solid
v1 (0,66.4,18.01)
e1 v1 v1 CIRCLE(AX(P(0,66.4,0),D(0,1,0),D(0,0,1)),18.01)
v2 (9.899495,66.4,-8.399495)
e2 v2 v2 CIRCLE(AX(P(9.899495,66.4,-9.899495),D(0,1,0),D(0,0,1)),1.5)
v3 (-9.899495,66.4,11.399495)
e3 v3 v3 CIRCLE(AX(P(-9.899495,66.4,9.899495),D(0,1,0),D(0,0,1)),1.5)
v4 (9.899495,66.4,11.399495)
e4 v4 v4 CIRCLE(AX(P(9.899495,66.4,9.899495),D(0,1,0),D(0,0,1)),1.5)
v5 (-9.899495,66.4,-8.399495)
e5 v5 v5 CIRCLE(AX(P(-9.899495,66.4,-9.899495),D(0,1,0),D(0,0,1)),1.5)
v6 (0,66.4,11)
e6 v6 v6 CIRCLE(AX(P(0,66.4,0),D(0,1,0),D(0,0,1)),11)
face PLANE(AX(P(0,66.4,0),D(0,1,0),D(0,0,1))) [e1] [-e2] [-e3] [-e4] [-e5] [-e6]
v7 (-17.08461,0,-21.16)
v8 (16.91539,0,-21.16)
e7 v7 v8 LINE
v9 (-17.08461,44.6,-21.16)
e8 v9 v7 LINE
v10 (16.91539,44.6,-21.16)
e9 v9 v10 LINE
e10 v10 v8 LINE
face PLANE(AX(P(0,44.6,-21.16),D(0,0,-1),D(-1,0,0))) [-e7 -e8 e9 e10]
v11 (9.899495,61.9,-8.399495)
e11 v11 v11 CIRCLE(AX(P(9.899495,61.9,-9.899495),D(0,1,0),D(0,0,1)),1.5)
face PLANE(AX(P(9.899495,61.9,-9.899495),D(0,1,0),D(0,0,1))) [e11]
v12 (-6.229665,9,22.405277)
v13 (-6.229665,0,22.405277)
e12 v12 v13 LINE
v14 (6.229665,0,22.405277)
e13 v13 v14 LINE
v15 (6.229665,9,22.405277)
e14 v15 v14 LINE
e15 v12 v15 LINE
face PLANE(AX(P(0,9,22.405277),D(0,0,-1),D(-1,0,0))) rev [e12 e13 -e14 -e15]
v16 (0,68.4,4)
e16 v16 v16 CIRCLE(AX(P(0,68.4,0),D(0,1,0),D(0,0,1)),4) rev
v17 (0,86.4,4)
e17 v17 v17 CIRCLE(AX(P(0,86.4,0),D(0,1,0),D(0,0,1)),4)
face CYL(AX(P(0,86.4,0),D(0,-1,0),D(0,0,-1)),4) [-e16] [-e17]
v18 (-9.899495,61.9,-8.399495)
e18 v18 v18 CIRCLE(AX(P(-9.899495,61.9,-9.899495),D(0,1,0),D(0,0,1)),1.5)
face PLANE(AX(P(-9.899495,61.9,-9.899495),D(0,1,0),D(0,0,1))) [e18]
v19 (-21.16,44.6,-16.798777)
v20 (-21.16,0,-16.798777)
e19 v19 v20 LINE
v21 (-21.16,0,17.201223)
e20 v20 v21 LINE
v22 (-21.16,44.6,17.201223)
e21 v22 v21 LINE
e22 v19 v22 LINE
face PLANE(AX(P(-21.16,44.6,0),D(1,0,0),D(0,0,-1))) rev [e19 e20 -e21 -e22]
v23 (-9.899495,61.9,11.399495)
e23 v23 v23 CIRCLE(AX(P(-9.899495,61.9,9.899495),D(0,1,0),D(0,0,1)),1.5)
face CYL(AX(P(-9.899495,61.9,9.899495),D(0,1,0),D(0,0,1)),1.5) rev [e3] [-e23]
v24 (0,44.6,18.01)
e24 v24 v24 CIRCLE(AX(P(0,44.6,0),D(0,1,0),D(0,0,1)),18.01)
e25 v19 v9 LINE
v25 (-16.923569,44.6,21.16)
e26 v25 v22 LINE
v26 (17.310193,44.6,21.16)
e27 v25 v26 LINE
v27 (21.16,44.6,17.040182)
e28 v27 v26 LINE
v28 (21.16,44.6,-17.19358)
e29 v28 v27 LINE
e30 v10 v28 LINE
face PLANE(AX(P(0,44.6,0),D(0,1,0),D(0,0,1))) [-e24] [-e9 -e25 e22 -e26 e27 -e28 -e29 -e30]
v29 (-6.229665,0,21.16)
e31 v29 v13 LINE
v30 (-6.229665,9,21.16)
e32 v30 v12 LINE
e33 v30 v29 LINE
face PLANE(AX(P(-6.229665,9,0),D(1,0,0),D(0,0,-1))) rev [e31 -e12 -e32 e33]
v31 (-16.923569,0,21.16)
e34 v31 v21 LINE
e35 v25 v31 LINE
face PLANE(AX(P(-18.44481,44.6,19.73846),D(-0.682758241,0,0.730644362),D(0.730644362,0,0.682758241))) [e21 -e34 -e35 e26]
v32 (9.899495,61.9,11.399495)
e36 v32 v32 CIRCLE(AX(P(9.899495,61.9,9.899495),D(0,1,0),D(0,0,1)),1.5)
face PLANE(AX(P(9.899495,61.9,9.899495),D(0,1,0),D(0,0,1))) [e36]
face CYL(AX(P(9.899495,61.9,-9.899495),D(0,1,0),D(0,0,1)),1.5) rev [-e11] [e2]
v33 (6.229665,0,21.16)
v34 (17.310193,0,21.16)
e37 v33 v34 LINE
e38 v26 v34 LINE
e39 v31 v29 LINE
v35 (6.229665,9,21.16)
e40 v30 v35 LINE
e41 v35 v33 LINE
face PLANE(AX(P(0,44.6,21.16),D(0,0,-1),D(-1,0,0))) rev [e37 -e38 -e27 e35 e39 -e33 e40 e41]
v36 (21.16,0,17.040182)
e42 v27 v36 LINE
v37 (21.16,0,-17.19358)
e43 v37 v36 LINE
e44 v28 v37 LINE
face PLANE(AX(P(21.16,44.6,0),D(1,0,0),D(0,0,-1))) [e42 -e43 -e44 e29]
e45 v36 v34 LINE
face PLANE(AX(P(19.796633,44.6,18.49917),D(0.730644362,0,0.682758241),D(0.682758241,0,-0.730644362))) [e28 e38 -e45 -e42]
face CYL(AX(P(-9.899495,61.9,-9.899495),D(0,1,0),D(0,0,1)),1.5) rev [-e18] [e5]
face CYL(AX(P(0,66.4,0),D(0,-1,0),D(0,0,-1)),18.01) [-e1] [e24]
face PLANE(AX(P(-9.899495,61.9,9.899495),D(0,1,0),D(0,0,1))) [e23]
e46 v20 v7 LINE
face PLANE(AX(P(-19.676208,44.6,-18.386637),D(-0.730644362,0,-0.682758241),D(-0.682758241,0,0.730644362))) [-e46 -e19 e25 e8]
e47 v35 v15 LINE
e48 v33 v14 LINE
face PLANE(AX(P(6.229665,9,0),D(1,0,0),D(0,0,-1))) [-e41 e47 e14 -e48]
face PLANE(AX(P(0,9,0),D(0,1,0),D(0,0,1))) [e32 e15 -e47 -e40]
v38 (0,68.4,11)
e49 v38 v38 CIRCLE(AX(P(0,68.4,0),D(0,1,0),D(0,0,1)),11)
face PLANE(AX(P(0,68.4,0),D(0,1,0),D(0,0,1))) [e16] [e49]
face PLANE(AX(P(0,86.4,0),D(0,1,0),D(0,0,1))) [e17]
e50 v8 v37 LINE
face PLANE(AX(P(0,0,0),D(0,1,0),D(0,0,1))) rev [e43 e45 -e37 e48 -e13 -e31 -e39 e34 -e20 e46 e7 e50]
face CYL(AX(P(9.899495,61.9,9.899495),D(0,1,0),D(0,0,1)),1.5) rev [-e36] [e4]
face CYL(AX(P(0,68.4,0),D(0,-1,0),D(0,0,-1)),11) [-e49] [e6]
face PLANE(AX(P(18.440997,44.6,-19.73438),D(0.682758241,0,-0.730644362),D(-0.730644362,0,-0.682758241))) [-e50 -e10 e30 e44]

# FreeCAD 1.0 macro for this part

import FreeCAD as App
import Part
import Sketcher

doc = App.newDocument("Part")
body = doc.addObject("PartDesign::Body", "Body")

# Sketch on XZ plane
sketch1 = doc.addObject("Sketcher::SketchObject", "Sketch")
body.addObject(sketch1)
sketch1.AttachmentSupport = (doc.XZ_Plane, [""])
sketch1.MapMode = "FlatFace"
sketch1.addGeometry(Part.LineSegment(App.Vector(-17.08461, -21.16, 0), App.Vector(-21.16, -16.798777, 0)), False)
sketch1.addGeometry(Part.LineSegment(App.Vector(-21.16, -16.798777, 0), App.Vector(-21.16, 17.201223, 0)), False)
sketch1.addGeometry(Part.LineSegment(App.Vector(-21.16, 17.201223, 0), App.Vector(-16.923569, 21.16, 0)), False)
sketch1.addGeometry(Part.LineSegment(App.Vector(-16.923569, 21.16, 0), App.Vector(17.310193, 21.16, 0)), False)
sketch1.addGeometry(Part.LineSegment(App.Vector(17.310193, 21.16, 0), App.Vector(21.16, 17.040182, 0)), False)
sketch1.addGeometry(Part.LineSegment(App.Vector(21.16, 17.040182, 0), App.Vector(21.16, -17.19358, 0)), False)
sketch1.addGeometry(Part.LineSegment(App.Vector(21.16, -17.19358, 0), App.Vector(16.91539, -21.16, 0)), False)
sketch1.addGeometry(Part.LineSegment(App.Vector(16.91539, -21.16, 0), App.Vector(-17.08461, -21.16, 0)), False)
sketch1.addConstraint(Sketcher.Constraint("Coincident", 0, 2, 1, 1))
sketch1.addConstraint(Sketcher.Constraint("Coincident", 1, 2, 2, 1))
sketch1.addConstraint(Sketcher.Constraint("Coincident", 2, 2, 3, 1))
sketch1.addConstraint(Sketcher.Constraint("Coincident", 3, 2, 4, 1))
sketch1.addConstraint(Sketcher.Constraint("Coincident", 4, 2, 5, 1))
sketch1.addConstraint(Sketcher.Constraint("Coincident", 5, 2, 6, 1))
sketch1.addConstraint(Sketcher.Constraint("Coincident", 6, 2, 7, 1))
sketch1.addConstraint(Sketcher.Constraint("Coincident", 7, 2, 0, 1))
sketch1.addConstraint(Sketcher.Constraint("Vertical", 1))
sketch1.addConstraint(Sketcher.Constraint("Horizontal", 3))
sketch1.addConstraint(Sketcher.Constraint("Vertical", 5))
sketch1.addConstraint(Sketcher.Constraint("Horizontal", 7))
sketch1.addConstraint(Sketcher.Constraint("Perpendicular", 0, 2))
sketch1.addConstraint(Sketcher.Constraint("Perpendicular", 2, 4))
sketch1.addConstraint(Sketcher.Constraint("Perpendicular", 4, 6))
sketch1.addConstraint(Sketcher.Constraint("Equal", 7, 1))
sketch1.addConstraint(Sketcher.Constraint("Equal", 3, 5))
sketch1.addConstraint(Sketcher.Constraint("DistanceX", 7, 2, 7, 1, 34.0))
sketch1.addConstraint(Sketcher.Constraint("DistanceX", 0, 2, -1, 1, 21.16))
sketch1.addConstraint(Sketcher.Constraint("DistanceY", -1, 1, 2, 2, 21.16))
sketch1.addConstraint(Sketcher.Constraint("DistanceX", -1, 1, 4, 2, 21.16))
sketch1.addConstraint(Sketcher.Constraint("DistanceY", 6, 2, -1, 1, 21.16))
sketch1.addConstraint(Sketcher.Constraint("DistanceX", 3, 1, 3, 2, 34.233762))
sketch1.addConstraint(Sketcher.Constraint("Distance", 0, 5.969009))
pad1 = doc.addObject("PartDesign::Pad", "Pad")
body.addObject(pad1)
pad1.Profile = sketch1
pad1.Length = 44.6
pad1.Reversed = True

# Sketch on XZ plane
sketch2 = doc.addObject("Sketcher::SketchObject", "Sketch001")
body.addObject(sketch2)
sketch2.AttachmentSupport = (doc.XZ_Plane, [""])
sketch2.MapMode = "FlatFace"
sketch2.AttachmentOffset = App.Placement(App.Vector(0, 0, -44.6), App.Rotation())
sketch2.addGeometry(Part.Circle(App.Vector(0, 0, 0), App.Vector(0, 0, 1), 18), False)
sketch2.addConstraint(Sketcher.Constraint("Coincident", 0, 3, -1, 1))
sketch2.addConstraint(Sketcher.Constraint("Diameter", 0, 36.02))
pad2 = doc.addObject("PartDesign::Pad", "Pad001")
body.addObject(pad2)
pad2.Profile = sketch2
pad2.Length = 21.8
pad2.Reversed = True

# Sketch on XZ plane
sketch3 = doc.addObject("Sketcher::SketchObject", "Sketch002")
body.addObject(sketch3)
sketch3.AttachmentSupport = (doc.XZ_Plane, [""])
sketch3.MapMode = "FlatFace"
sketch3.AttachmentOffset = App.Placement(App.Vector(0, 0, -66.4), App.Rotation())
sketch3.addGeometry(Part.Circle(App.Vector(0, 0, 0), App.Vector(0, 0, 1), 11), False)
sketch3.addConstraint(Sketcher.Constraint("Coincident", 0, 3, -1, 1))
sketch3.addConstraint(Sketcher.Constraint("Diameter", 0, 22.0))
pad3 = doc.addObject("PartDesign::Pad", "Pad002")
body.addObject(pad3)
pad3.Profile = sketch3
pad3.Length = 2
pad3.Reversed = True

# Sketch on XZ plane
sketch4 = doc.addObject("Sketcher::SketchObject", "Sketch003")
body.addObject(sketch4)
sketch4.AttachmentSupport = (doc.XZ_Plane, [""])
sketch4.MapMode = "FlatFace"
sketch4.AttachmentOffset = App.Placement(App.Vector(0, 0, -66.4), App.Rotation())
sketch4.addGeometry(Part.Circle(App.Vector(9.9, 9.9, 0), App.Vector(0, 0, 1), 1.5), False)
sketch4.addGeometry(Part.Circle(App.Vector(9.9, -9.9, 0), App.Vector(0, 0, 1), 1.5), False)
sketch4.addGeometry(Part.Circle(App.Vector(-9.9, -9.9, 0), App.Vector(0, 0, 1), 1.5), False)
sketch4.addGeometry(Part.Circle(App.Vector(-9.9, 9.9, 0), App.Vector(0, 0, 1), 1.5), False)
sketch4.addConstraint(Sketcher.Constraint("Equal", 0, 1))
sketch4.addConstraint(Sketcher.Constraint("Equal", 1, 2))
sketch4.addConstraint(Sketcher.Constraint("Equal", 2, 3))
sketch4.addConstraint(Sketcher.Constraint("Symmetric", 0, 3, 2, 3, -1, 1))
sketch4.addConstraint(Sketcher.Constraint("Symmetric", 1, 3, 3, 3, -1, 1))
sketch4.addConstraint(Sketcher.Constraint("Symmetric", 1, 3, 2, 3, -2))
sketch4.addConstraint(Sketcher.Constraint("Diameter", 0, 3.0))
sketch4.addConstraint(Sketcher.Constraint("DistanceY", 1, 3, 0, 3, 19.79899))
sketch4.addConstraint(Sketcher.Constraint("DistanceX", 2, 3, 1, 3, 19.79899))
pocket1 = doc.addObject("PartDesign::Pocket", "Pocket")
body.addObject(pocket1)
pocket1.Profile = sketch4
pocket1.Length = 4.5
pocket1.Reversed = True

# Sketch on XZ plane
sketch5 = doc.addObject("Sketcher::SketchObject", "Sketch004")
body.addObject(sketch5)
sketch5.AttachmentSupport = (doc.XZ_Plane, [""])
sketch5.MapMode = "FlatFace"
sketch5.AttachmentOffset = App.Placement(App.Vector(0, 0, -66.4), App.Rotation())
sketch5.addGeometry(Part.Circle(App.Vector(0, 0, 0), App.Vector(0, 0, 1), 4), False)
sketch5.addConstraint(Sketcher.Constraint("Coincident", 0, 3, -1, 1))
sketch5.addConstraint(Sketcher.Constraint("Diameter", 0, 8.0))
pad4 = doc.addObject("PartDesign::Pad", "Pad003")
body.addObject(pad4)
pad4.Profile = sketch5
pad4.Length = 20
pad4.Reversed = True

# Sketch on XZ plane
sketch6 = doc.addObject("Sketcher::SketchObject", "Sketch005")
body.addObject(sketch6)
sketch6.AttachmentSupport = (doc.XZ_Plane, [""])
sketch6.MapMode = "FlatFace"
sketch6.addGeometry(Part.LineSegment(App.Vector(-6.2, 21.2, 0), App.Vector(-6.2, 22.4, 0)), False)
sketch6.addGeometry(Part.LineSegment(App.Vector(-6.2, 22.4, 0), App.Vector(6.2, 22.4, 0)), False)
sketch6.addGeometry(Part.LineSegment(App.Vector(6.2, 22.4, 0), App.Vector(6.2, 21.2, 0)), False)
sketch6.addGeometry(Part.LineSegment(App.Vector(6.2, 21.2, 0), App.Vector(-6.2, 21.2, 0)), False)
sketch6.addConstraint(Sketcher.Constraint("Coincident", 0, 2, 1, 1))
sketch6.addConstraint(Sketcher.Constraint("Coincident", 1, 2, 2, 1))
sketch6.addConstraint(Sketcher.Constraint("Coincident", 2, 2, 3, 1))
sketch6.addConstraint(Sketcher.Constraint("Coincident", 3, 2, 0, 1))
sketch6.addConstraint(Sketcher.Constraint("Vertical", 0))
sketch6.addConstraint(Sketcher.Constraint("Horizontal", 1))
sketch6.addConstraint(Sketcher.Constraint("Vertical", 2))
sketch6.addConstraint(Sketcher.Constraint("Horizontal", 3))
sketch6.addConstraint(Sketcher.Constraint("DistanceY", -1, 1, 2, 2, 21.16))
sketch6.addConstraint(Sketcher.Constraint("DistanceX", 1, 1, 1, 2, 12.45933))
sketch6.addConstraint(Sketcher.Constraint("DistanceY", 0, 1, 0, 2, 1.245277))
sketch6.addConstraint(Sketcher.Constraint("DistanceX", 0, 2, -1, 1, 6.229665))
pad5 = doc.addObject("PartDesign::Pad", "Pad004")
body.addObject(pad5)
pad5.Profile = sketch6
pad5.Length = 9
pad5.Reversed = True

doc.recompute()
